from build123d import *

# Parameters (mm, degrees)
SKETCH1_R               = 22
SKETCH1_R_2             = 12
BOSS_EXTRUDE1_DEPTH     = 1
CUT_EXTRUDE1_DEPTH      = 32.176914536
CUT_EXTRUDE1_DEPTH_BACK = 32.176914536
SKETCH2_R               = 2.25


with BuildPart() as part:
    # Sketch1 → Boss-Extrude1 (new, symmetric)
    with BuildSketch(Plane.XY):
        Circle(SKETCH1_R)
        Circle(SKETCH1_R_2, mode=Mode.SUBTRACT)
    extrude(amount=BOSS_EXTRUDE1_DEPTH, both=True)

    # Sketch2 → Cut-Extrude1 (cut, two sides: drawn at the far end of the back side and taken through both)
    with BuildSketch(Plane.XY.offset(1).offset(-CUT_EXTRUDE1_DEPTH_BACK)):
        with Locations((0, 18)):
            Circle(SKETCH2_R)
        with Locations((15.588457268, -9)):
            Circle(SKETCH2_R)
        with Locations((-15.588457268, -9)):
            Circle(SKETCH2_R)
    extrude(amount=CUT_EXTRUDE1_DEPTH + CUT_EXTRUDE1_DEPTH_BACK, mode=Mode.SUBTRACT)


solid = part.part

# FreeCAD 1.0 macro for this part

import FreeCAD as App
import Part
import Sketcher

V = App.Vector

doc = App.newDocument("Part")
body = doc.addObject("PartDesign::Body", "Body")

sketch1 = body.newObject("Sketcher::SketchObject", "Sketch")
sketch1.AttachmentSupport = (doc.getObject("XY_Plane"), [""])
sketch1.MapMode = "FlatFace"
sketch1.addGeometry(Part.Circle(V(0, 0, 0), V(0, 0, 1), 22), False)
sketch1.addGeometry(Part.Circle(V(0, 0, 0), V(0, 0, 1), 12), False)
sketch1.addConstraint(Sketcher.Constraint("Coincident", 0, 3, -1, 1))
sketch1.addConstraint(Sketcher.Constraint("Coincident", 1, 3, -1, 1))
sketch1.addConstraint(Sketcher.Constraint("Diameter", 0, 44.0))
sketch1.addConstraint(Sketcher.Constraint("Diameter", 1, 24.0))
pad1 = body.newObject("PartDesign::Pad", "Pad")
pad1.Profile = sketch1
pad1.Length = 2
pad1.Midplane = True

sketch2 = body.newObject("Sketcher::SketchObject", "Sketch001")
sketch2.AttachmentSupport = (doc.getObject("XY_Plane"), [""])
sketch2.MapMode = "FlatFace"
sketch2.AttachmentOffset = App.Placement(V(0, 0, 1), App.Rotation())
sketch2.addGeometry(Part.Circle(V(0, 18, 0), V(0, 0, 1), 2.2), False)
sketch2.addGeometry(Part.Circle(V(15.6, -9, 0), V(0, 0, 1), 2.2), False)
sketch2.addGeometry(Part.Circle(V(-15.6, -9, 0), V(0, 0, 1), 2.2), False)
sketch2.addConstraint(Sketcher.Constraint("Equal", 0, 1))
sketch2.addConstraint(Sketcher.Constraint("Equal", 1, 2))
sketch2.addConstraint(Sketcher.Constraint("Symmetric", 1, 3, 2, 3, -2))
sketch2.addConstraint(Sketcher.Constraint("PointOnObject", 0, 3, -2))
sketch2.addConstraint(Sketcher.Constraint("Diameter", 0, 4.5))
sketch2.addConstraint(Sketcher.Constraint("DistanceY", -1, 1, 0, 3, 18.0))
sketch2.addConstraint(Sketcher.Constraint("DistanceY", 1, 3, -1, 1, 9.0))
sketch2.addConstraint(Sketcher.Constraint("DistanceX", -1, 1, 1, 3, 15.588457))
pocket1 = body.newObject("PartDesign::Pocket", "Pocket")
pocket1.Profile = sketch2
pocket1.Type = "ThroughAll"
pocket1.Midplane = True

doc.recompute()
